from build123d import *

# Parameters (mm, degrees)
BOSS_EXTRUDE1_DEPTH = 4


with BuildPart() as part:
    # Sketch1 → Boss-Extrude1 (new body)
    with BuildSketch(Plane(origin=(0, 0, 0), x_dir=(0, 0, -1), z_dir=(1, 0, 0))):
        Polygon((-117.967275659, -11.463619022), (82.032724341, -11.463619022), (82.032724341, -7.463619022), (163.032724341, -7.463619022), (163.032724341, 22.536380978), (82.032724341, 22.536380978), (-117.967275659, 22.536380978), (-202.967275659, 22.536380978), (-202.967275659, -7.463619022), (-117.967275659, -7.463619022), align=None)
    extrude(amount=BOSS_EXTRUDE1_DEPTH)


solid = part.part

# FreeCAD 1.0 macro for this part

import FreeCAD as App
import Part
import Sketcher

V = App.Vector
Q = App.Units.Quantity

doc = App.newDocument("Part")
body = doc.addObject("PartDesign::Body", "Body")

sketch1 = body.newObject("Sketcher::SketchObject", "Sketch")
sketch1.AttachmentSupport = (doc.getObject("YZ_Plane"), [""])
sketch1.MapMode = "FlatFace"
sketch1.addGeometry([
    Part.LineSegment(V(-11.5, 118, 0), V(-11.5, -82, 0)),
    Part.LineSegment(V(-11.5, -82, 0), V(-7.5, -82, 0)),
    Part.LineSegment(V(-7.5, -82, 0), V(-7.5, -163, 0)),
    Part.LineSegment(V(-7.5, -163, 0), V(22.5, -163, 0)),
    Part.LineSegment(V(22.5, -163, 0), V(22.5, 203, 0)),
    Part.LineSegment(V(22.5, 203, 0), V(-7.5, 203, 0)),
    Part.LineSegment(V(-7.5, 203, 0), V(-7.5, 118, 0)),
    Part.LineSegment(V(-7.5, 118, 0), V(-11.5, 118, 0)),
], False)
sketch1.addConstraint([
    Sketcher.Constraint("Coincident", 0, 2, 1, 1),
    Sketcher.Constraint("Coincident", 1, 2, 2, 1),
    Sketcher.Constraint("Coincident", 2, 2, 3, 1),
    Sketcher.Constraint("Coincident", 3, 2, 4, 1),
    Sketcher.Constraint("Coincident", 4, 2, 5, 1),
    Sketcher.Constraint("Coincident", 5, 2, 6, 1),
    Sketcher.Constraint("Coincident", 6, 2, 7, 1),
    Sketcher.Constraint("Coincident", 7, 2, 0, 1),
    Sketcher.Constraint("Vertical", 0),
    Sketcher.Constraint("Horizontal", 1),
    Sketcher.Constraint("Vertical", 2),
    Sketcher.Constraint("Horizontal", 3),
    Sketcher.Constraint("Vertical", 4),
    Sketcher.Constraint("Horizontal", 5),
    Sketcher.Constraint("Vertical", 6),
    Sketcher.Constraint("Horizontal", 7),
    Sketcher.Constraint("Vertical", 2, 2, 5, 2),
    Sketcher.Constraint("DistanceX", 1, 1, 1, 2, Q("4 mm")),
    Sketcher.Constraint("DistanceX", 3, 1, 3, 2, Q("30 mm")),
    Sketcher.Constraint("DistanceY", 0, 2, 0, 1, Q("200 mm")),
    Sketcher.Constraint("DistanceY", 2, 2, 2, 1, Q("81 mm")),
    Sketcher.Constraint("DistanceY", 4, 1, 4, 2, Q("366 mm")),
    Sketcher.Constraint("DistanceX", 0, 2, -1, 1, Q("11.463619 mm")),
    Sketcher.Constraint("DistanceY", 0, 2, -1, 1, Q("82.032724 mm")),
])
pad1 = body.newObject("PartDesign::Pad", "Pad")
pad1.Profile = sketch1
pad1.Length = 4

doc.recompute()
